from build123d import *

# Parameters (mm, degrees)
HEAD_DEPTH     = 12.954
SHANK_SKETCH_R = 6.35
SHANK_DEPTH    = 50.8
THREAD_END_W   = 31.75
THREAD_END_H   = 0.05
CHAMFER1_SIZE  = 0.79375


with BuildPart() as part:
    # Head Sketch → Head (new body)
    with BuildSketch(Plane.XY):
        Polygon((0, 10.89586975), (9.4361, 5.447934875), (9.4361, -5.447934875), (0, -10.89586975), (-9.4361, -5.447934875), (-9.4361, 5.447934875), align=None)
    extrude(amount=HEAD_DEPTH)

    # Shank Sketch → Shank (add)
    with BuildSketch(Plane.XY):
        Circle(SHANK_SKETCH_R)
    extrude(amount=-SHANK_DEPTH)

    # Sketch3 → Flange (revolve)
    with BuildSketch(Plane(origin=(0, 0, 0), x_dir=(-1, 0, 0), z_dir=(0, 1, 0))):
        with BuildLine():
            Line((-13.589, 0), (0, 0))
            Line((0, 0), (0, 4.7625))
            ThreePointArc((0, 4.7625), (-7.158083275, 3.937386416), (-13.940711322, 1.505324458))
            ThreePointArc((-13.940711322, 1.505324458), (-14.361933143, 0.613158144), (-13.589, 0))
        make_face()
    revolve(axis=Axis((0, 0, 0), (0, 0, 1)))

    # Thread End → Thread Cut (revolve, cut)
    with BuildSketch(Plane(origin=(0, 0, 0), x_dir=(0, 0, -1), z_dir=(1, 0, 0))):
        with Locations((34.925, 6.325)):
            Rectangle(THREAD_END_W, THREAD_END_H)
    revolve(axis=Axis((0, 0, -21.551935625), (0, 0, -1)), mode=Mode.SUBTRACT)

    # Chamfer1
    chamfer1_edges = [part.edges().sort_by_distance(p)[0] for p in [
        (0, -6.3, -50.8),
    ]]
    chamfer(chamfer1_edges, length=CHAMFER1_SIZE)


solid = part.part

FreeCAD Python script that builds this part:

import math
import FreeCAD as App
import Part
import Sketcher
from FreeCAD import Vector
Q = App.Units.Quantity


def edges_at(feature, points):
    """Names of the edges that pass closest to the given points."""
    edges = feature.Shape.Edges
    near = lambda p: min(range(len(edges)), key=lambda i: edges[i].distToShape(Part.Vertex(*p))[0])
    return sorted({f"Edge{near(p) + 1}" for p in points})

doc = App.newDocument("Part")
body = doc.addObject("PartDesign::Body", "Body")

# Sketch on XY plane
sketch1 = doc.addObject("Sketcher::SketchObject", "Sketch")
body.addObject(sketch1)
sketch1.AttachmentSupport = (doc.XY_Plane, [""])
sketch1.MapMode = "FlatFace"
sketch1.addGeometry([
    Part.LineSegment(Vector(9.4361, 5.447935, 0), Vector(0, 10.89587, 0)),  # 0
    Part.LineSegment(Vector(0, 10.89587, 0), Vector(-9.4361, 5.447935, 0)),  # 1
    Part.LineSegment(Vector(-9.4361, 5.447935, 0), Vector(-9.4361, -5.447935, 0)),  # 2
    Part.LineSegment(Vector(-9.4361, -5.447935, 0), Vector(0, -10.89587, 0)),  # 3
    Part.LineSegment(Vector(0, -10.89587, 0), Vector(9.4361, -5.447935, 0)),  # 4
    Part.LineSegment(Vector(9.4361, -5.447935, 0), Vector(9.4361, 5.447935, 0)),  # 5
], False)
sketch1.addConstraint([
    Sketcher.Constraint("Coincident", 0, 2, 1, 1),
    Sketcher.Constraint("Coincident", 1, 2, 2, 1),
    Sketcher.Constraint("Coincident", 2, 2, 3, 1),
    Sketcher.Constraint("Coincident", 3, 2, 4, 1),
    Sketcher.Constraint("Coincident", 4, 2, 5, 1),
    Sketcher.Constraint("Coincident", 5, 2, 0, 1),
    Sketcher.Constraint("Vertical", 2),
    Sketcher.Constraint("Vertical", 5),
    Sketcher.Constraint("Symmetric", 0, 2, 3, 2, -1, 1),
    Sketcher.Constraint("Symmetric", 1, 2, 4, 2, -1, 1),
    Sketcher.Constraint("PointOnObject", 0, 2, -2),
    Sketcher.Constraint("Parallel", 0, 3),
    Sketcher.Constraint("Horizontal", 2, 2, 4, 2),
    Sketcher.Constraint("Angle", 0, Q("150 deg")),
    Sketcher.Constraint("DistanceX", 2, 2, 4, 2, Q("0.743 in")),
    Sketcher.Constraint("DistanceY", 2, 2, 2, 1, 10.89587),
])
pad1 = doc.addObject("PartDesign::Pad", "Pad")
body.addObject(pad1)
pad1.Profile = sketch1
pad1.Length = Q("0.51 in")

# Sketch on XY plane
sketch2 = doc.addObject("Sketcher::SketchObject", "Sketch001")
body.addObject(sketch2)
sketch2.AttachmentSupport = (doc.XY_Plane, [""])
sketch2.MapMode = "FlatFace"
sketch2.addGeometry(Part.Circle(Vector(0, 0, 0), Vector(0, 0, 1), 6.35), False)
sketch2.addConstraint([
    Sketcher.Constraint("Coincident", 0, 3, -1, 1),
    Sketcher.Constraint("Diameter", 0, Q("0.5 in")),
])
pad2 = doc.addObject("PartDesign::Pad", "Pad001")
body.addObject(pad2)
pad2.Profile = sketch2
pad2.Length = Q("2 in")
pad2.Reversed = True

# Sketch on XZ plane
sketch3 = doc.addObject("Sketcher::SketchObject", "Sketch002")
body.addObject(sketch3)
sketch3.AttachmentSupport = (doc.XZ_Plane, [""])
sketch3.MapMode = "FlatFace"
sketch3.addGeometry([
    Part.LineSegment(Vector(13.589, 0, 0), Vector(0, 0, 0)),
    Part.LineSegment(Vector(0, 0, 0), Vector(0, 4.7625, 0)),
    Part.ArcOfCircle(Part.Circle(Vector(0, -26.69921, 0), Vector(0, 0, 1), 31.46171), math.radians(63.698103), math.radians(90)),
    Part.ArcOfCircle(Part.Circle(Vector(13.589, 0.79375, 0), Vector(0, 0, 1), 0.79375), math.radians(-90), math.radians(63.698103)),
], False)
sketch3.addConstraint([
    Sketcher.Constraint("Coincident", 0, 2, 1, 1),
    Sketcher.Constraint("Coincident", 1, 2, 2, 2),
    Sketcher.Constraint("Tangent", 2, 1, 3, 2),
    Sketcher.Constraint("Tangent", 3, 1, 0, 1),
    Sketcher.Constraint("Horizontal", 0),
    Sketcher.Constraint("Vertical", 1),
    Sketcher.Constraint("Coincident", 0, 2, -1, 1),
    Sketcher.Constraint("PointOnObject", 2, 3, -2),
    Sketcher.Constraint("Radius", 3, Q("0.03125 in")),
    Sketcher.Constraint("DistanceX", 0, 2, 0, 1, Q("0.535 in")),
    Sketcher.Constraint("DistanceY", 1, 1, 1, 2, Q("0.1875 in")),
])
revolution = doc.addObject("PartDesign::Revolution", "Revolution")
body.addObject(revolution)
revolution.Profile = sketch3
revolution.ReferenceAxis = (sketch3, ["V_Axis"])
revolution.Angle = 360

# Sketch on YZ plane
sketch4 = doc.addObject("Sketcher::SketchObject", "Sketch003")
body.addObject(sketch4)
sketch4.AttachmentSupport = (doc.YZ_Plane, [""])
sketch4.MapMode = "FlatFace"
sketch4.addGeometry([
    Part.LineSegment(Vector(6.35, -19.05, 0), Vector(6.3, -19.05, 0)),
    Part.LineSegment(Vector(6.3, -19.05, 0), Vector(6.3, -50.8, 0)),
    Part.LineSegment(Vector(6.3, -50.8, 0), Vector(6.35, -50.8, 0)),
    Part.LineSegment(Vector(6.35, -50.8, 0), Vector(6.35, -19.05, 0)),
], False)
sketch4.addConstraint([
    Sketcher.Constraint("Coincident", 0, 2, 1, 1),
    Sketcher.Constraint("Coincident", 1, 2, 2, 1),
    Sketcher.Constraint("Coincident", 2, 2, 3, 1),
    Sketcher.Constraint("Coincident", 3, 2, 0, 1),
    Sketcher.Constraint("Horizontal", 0),
    Sketcher.Constraint("Vertical", 1),
    Sketcher.Constraint("Horizontal", 2),
    Sketcher.Constraint("Vertical", 3),
    Sketcher.Constraint("DistanceY", 1, 2, -1, 1, Q("2 in")),
    Sketcher.Constraint("DistanceY", 1, 2, 1, 1, Q("1.25 in")),
    Sketcher.Constraint("DistanceX", -1, 1, 2, 2, Q("0.25 in")),
    Sketcher.Constraint("DistanceX", 0, 2, 0, 1, 0.05),
])
groove = doc.addObject("PartDesign::Groove", "Groove")
body.addObject(groove)
groove.Profile = sketch4
groove.ReferenceAxis = (sketch4, ["V_Axis"])
groove.Angle = 360
doc.recompute()

chamfer = doc.addObject("PartDesign::Chamfer", "Chamfer")
body.addObject(chamfer)
chamfer.Base = (groove, edges_at(groove, [(0, -6.3, -50.8)]))
chamfer.Size = Q("0.03125 in")

doc.recompute()
